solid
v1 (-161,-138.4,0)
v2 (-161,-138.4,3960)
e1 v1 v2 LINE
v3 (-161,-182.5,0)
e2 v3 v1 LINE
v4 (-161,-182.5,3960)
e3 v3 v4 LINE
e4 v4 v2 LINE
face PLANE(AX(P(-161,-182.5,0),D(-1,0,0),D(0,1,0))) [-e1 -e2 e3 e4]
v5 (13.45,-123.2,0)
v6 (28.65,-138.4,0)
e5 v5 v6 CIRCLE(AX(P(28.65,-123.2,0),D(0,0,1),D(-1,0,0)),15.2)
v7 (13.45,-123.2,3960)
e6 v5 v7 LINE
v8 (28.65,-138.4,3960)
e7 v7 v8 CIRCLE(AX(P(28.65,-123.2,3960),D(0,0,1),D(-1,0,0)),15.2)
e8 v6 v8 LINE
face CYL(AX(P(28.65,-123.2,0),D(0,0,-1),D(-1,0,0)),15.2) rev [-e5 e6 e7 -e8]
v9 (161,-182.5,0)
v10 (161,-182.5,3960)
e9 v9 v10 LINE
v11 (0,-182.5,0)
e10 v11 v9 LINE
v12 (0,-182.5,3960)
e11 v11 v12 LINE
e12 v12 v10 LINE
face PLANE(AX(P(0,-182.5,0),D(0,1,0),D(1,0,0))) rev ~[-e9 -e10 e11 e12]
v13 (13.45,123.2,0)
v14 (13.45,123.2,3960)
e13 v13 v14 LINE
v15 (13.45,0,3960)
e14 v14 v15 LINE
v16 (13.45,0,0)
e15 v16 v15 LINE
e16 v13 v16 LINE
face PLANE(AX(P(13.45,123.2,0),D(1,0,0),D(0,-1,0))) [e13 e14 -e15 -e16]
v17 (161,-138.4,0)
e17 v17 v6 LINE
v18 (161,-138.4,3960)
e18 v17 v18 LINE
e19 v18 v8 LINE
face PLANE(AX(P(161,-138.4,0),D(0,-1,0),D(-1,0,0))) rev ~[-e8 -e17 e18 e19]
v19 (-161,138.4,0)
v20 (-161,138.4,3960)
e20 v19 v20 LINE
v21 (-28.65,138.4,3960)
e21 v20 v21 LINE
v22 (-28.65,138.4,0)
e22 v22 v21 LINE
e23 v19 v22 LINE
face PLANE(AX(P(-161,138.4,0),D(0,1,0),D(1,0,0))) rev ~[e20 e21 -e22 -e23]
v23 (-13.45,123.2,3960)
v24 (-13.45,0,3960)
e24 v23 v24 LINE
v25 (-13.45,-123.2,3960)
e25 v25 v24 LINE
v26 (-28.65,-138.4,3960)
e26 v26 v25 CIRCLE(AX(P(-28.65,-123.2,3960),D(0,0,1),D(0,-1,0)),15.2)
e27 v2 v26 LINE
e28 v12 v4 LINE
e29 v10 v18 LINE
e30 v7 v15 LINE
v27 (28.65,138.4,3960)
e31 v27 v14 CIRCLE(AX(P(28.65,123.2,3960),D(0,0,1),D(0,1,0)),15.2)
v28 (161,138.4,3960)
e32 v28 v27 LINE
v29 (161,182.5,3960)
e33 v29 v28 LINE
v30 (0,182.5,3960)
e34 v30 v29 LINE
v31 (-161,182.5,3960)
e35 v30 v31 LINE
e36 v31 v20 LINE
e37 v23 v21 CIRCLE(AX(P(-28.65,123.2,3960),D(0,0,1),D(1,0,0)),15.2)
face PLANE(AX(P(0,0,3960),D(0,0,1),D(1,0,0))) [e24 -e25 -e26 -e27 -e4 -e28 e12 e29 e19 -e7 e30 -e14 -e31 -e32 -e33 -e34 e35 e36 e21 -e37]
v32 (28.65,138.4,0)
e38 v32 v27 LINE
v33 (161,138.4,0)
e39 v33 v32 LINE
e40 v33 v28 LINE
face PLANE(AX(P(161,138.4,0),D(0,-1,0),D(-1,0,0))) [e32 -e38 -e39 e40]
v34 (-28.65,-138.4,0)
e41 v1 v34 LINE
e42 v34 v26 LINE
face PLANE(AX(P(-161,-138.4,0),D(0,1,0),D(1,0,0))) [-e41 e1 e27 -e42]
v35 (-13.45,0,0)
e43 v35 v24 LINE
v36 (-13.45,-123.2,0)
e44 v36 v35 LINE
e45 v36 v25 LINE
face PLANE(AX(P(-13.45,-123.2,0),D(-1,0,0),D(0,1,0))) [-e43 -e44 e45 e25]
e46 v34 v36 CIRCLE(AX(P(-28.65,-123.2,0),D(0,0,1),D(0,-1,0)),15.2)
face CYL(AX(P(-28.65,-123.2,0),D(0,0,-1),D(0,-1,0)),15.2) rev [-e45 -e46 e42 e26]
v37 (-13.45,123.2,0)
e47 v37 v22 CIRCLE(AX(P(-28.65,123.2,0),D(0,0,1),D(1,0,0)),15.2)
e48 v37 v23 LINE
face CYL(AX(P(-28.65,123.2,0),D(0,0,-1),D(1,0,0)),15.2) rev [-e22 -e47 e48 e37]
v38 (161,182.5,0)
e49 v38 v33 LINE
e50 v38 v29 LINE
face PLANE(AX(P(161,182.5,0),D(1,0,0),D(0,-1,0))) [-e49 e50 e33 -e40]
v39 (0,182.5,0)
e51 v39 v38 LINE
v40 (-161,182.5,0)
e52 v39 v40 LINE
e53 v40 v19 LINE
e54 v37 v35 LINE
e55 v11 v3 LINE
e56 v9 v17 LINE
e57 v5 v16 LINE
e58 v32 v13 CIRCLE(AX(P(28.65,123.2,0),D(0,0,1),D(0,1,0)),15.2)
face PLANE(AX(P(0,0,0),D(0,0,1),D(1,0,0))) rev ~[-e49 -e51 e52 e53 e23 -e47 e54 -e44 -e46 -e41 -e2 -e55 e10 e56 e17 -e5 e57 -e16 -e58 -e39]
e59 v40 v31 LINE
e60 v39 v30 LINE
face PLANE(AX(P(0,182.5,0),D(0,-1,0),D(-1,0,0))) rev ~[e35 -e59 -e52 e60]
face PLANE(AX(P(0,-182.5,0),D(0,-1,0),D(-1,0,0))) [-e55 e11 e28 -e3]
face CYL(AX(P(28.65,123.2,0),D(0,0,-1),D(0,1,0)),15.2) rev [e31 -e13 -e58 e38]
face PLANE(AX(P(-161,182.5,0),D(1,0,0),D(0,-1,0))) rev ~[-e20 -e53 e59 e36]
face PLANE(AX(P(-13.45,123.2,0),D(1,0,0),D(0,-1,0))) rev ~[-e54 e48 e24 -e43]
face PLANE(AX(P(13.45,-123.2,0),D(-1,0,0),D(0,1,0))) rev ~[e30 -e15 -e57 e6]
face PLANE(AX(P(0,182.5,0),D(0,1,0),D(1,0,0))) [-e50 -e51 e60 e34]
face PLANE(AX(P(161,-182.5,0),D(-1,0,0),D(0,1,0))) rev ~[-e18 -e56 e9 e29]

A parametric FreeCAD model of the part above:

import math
import FreeCAD as App
import Part
import Sketcher
Q = App.Units.Quantity

doc = App.newDocument("Part")
body = doc.addObject("PartDesign::Body", "Body")

sketch1 = body.newObject("Sketcher::SketchObject", "Sketch")
sketch1.AttachmentSupport = (doc.getObject("XY_Plane"), [""])
sketch1.MapMode = "FlatFace"
sketch1.addGeometry([
    Part.LineSegment(App.Vector(-161, -138, 0), App.Vector(-161, -182, 0)),
    Part.LineSegment(App.Vector(-161, -182, 0), App.Vector(161, -182, 0)),
    Part.LineSegment(App.Vector(161, -182, 0), App.Vector(161, -138, 0)),
    Part.LineSegment(App.Vector(161, -138, 0), App.Vector(29, -138, 0)),
    Part.ArcOfCircle(Part.Circle(App.Vector(29, -123, 0), App.Vector(0, 0, 1), 15), math.radians(180), math.radians(270)),
    Part.LineSegment(App.Vector(13, -123, 0), App.Vector(13, 123, 0)),
    Part.ArcOfCircle(Part.Circle(App.Vector(29, 123, 0), App.Vector(0, 0, 1), 15), math.radians(90), math.radians(180)),
    Part.LineSegment(App.Vector(29, 138, 0), App.Vector(161, 138, 0)),
    Part.LineSegment(App.Vector(161, 138, 0), App.Vector(161, 182, 0)),
    Part.LineSegment(App.Vector(161, 182, 0), App.Vector(-161, 182, 0)),
    Part.LineSegment(App.Vector(-161, 182, 0), App.Vector(-161, 138, 0)),
    Part.LineSegment(App.Vector(-161, 138, 0), App.Vector(-29, 138, 0)),
    Part.ArcOfCircle(Part.Circle(App.Vector(-29, 123, 0), App.Vector(0, 0, 1), 15), math.radians(0), math.radians(90)),
    Part.LineSegment(App.Vector(-13, 123, 0), App.Vector(-13, -123, 0)),
    Part.ArcOfCircle(Part.Circle(App.Vector(-29, -123, 0), App.Vector(0, 0, 1), 15), math.radians(-90), math.radians(0)),
    Part.LineSegment(App.Vector(-29, -138, 0), App.Vector(-161, -138, 0)),
], False)
sketch1.addConstraint([
    Sketcher.Constraint("Coincident", 0, 2, 1, 1),
    Sketcher.Constraint("Coincident", 1, 2, 2, 1),
    Sketcher.Constraint("Coincident", 2, 2, 3, 1),
    Sketcher.Constraint("Tangent", 3, 2, 4, 2),
    Sketcher.Constraint("Tangent", 4, 1, 5, 1),
    Sketcher.Constraint("Tangent", 5, 2, 6, 2),
    Sketcher.Constraint("Tangent", 6, 1, 7, 1),
    Sketcher.Constraint("Coincident", 7, 2, 8, 1),
    Sketcher.Constraint("Coincident", 8, 2, 9, 1),
    Sketcher.Constraint("Coincident", 9, 2, 10, 1),
    Sketcher.Constraint("Coincident", 10, 2, 11, 1),
    Sketcher.Constraint("Tangent", 11, 2, 12, 2),
    Sketcher.Constraint("Tangent", 12, 1, 13, 1),
    Sketcher.Constraint("Tangent", 13, 2, 14, 2),
    Sketcher.Constraint("Tangent", 14, 1, 15, 1),
    Sketcher.Constraint("Coincident", 15, 2, 0, 1),
    Sketcher.Constraint("Vertical", 0),
    Sketcher.Constraint("Horizontal", 1),
    Sketcher.Constraint("Vertical", 2),
    Sketcher.Constraint("Horizontal", 3),
    Sketcher.Constraint("Vertical", 5),
    Sketcher.Constraint("Horizontal", 7),
    Sketcher.Constraint("Vertical", 8),
    Sketcher.Constraint("Horizontal", 9),
    Sketcher.Constraint("Vertical", 10),
    Sketcher.Constraint("Horizontal", 11),
    Sketcher.Constraint("Vertical", 13),
    Sketcher.Constraint("Horizontal", 15),
    Sketcher.Constraint("Equal", 4, 6),
    Sketcher.Constraint("Equal", 6, 12),
    Sketcher.Constraint("Equal", 12, 14),
    Sketcher.Constraint("Symmetric", 4, 3, 12, 3, -1, 1),
    Sketcher.Constraint("Symmetric", 0, 2, 8, 2, -1, 1),
    Sketcher.Constraint("Symmetric", 7, 2, 10, 2, -2),
    Sketcher.Constraint("Symmetric", 2, 2, 15, 2, -2),
    Sketcher.Constraint("Radius", 4, Q("15.2 mm")),
    Sketcher.Constraint("DistanceY", 0, 2, 0, 1, Q("44.1 mm")),
    Sketcher.Constraint("DistanceX", 0, 2, -1, 1, Q("161 mm")),
    Sketcher.Constraint("DistanceY", 0, 2, -1, 1, Q("182.5 mm")),
    Sketcher.Constraint("DistanceX", -1, 1, 4, 1, Q("13.45 mm")),
])
pad1 = body.newObject("PartDesign::Pad", "Pad")
pad1.Profile = sketch1
pad1.Length = 3960

doc.recompute()
